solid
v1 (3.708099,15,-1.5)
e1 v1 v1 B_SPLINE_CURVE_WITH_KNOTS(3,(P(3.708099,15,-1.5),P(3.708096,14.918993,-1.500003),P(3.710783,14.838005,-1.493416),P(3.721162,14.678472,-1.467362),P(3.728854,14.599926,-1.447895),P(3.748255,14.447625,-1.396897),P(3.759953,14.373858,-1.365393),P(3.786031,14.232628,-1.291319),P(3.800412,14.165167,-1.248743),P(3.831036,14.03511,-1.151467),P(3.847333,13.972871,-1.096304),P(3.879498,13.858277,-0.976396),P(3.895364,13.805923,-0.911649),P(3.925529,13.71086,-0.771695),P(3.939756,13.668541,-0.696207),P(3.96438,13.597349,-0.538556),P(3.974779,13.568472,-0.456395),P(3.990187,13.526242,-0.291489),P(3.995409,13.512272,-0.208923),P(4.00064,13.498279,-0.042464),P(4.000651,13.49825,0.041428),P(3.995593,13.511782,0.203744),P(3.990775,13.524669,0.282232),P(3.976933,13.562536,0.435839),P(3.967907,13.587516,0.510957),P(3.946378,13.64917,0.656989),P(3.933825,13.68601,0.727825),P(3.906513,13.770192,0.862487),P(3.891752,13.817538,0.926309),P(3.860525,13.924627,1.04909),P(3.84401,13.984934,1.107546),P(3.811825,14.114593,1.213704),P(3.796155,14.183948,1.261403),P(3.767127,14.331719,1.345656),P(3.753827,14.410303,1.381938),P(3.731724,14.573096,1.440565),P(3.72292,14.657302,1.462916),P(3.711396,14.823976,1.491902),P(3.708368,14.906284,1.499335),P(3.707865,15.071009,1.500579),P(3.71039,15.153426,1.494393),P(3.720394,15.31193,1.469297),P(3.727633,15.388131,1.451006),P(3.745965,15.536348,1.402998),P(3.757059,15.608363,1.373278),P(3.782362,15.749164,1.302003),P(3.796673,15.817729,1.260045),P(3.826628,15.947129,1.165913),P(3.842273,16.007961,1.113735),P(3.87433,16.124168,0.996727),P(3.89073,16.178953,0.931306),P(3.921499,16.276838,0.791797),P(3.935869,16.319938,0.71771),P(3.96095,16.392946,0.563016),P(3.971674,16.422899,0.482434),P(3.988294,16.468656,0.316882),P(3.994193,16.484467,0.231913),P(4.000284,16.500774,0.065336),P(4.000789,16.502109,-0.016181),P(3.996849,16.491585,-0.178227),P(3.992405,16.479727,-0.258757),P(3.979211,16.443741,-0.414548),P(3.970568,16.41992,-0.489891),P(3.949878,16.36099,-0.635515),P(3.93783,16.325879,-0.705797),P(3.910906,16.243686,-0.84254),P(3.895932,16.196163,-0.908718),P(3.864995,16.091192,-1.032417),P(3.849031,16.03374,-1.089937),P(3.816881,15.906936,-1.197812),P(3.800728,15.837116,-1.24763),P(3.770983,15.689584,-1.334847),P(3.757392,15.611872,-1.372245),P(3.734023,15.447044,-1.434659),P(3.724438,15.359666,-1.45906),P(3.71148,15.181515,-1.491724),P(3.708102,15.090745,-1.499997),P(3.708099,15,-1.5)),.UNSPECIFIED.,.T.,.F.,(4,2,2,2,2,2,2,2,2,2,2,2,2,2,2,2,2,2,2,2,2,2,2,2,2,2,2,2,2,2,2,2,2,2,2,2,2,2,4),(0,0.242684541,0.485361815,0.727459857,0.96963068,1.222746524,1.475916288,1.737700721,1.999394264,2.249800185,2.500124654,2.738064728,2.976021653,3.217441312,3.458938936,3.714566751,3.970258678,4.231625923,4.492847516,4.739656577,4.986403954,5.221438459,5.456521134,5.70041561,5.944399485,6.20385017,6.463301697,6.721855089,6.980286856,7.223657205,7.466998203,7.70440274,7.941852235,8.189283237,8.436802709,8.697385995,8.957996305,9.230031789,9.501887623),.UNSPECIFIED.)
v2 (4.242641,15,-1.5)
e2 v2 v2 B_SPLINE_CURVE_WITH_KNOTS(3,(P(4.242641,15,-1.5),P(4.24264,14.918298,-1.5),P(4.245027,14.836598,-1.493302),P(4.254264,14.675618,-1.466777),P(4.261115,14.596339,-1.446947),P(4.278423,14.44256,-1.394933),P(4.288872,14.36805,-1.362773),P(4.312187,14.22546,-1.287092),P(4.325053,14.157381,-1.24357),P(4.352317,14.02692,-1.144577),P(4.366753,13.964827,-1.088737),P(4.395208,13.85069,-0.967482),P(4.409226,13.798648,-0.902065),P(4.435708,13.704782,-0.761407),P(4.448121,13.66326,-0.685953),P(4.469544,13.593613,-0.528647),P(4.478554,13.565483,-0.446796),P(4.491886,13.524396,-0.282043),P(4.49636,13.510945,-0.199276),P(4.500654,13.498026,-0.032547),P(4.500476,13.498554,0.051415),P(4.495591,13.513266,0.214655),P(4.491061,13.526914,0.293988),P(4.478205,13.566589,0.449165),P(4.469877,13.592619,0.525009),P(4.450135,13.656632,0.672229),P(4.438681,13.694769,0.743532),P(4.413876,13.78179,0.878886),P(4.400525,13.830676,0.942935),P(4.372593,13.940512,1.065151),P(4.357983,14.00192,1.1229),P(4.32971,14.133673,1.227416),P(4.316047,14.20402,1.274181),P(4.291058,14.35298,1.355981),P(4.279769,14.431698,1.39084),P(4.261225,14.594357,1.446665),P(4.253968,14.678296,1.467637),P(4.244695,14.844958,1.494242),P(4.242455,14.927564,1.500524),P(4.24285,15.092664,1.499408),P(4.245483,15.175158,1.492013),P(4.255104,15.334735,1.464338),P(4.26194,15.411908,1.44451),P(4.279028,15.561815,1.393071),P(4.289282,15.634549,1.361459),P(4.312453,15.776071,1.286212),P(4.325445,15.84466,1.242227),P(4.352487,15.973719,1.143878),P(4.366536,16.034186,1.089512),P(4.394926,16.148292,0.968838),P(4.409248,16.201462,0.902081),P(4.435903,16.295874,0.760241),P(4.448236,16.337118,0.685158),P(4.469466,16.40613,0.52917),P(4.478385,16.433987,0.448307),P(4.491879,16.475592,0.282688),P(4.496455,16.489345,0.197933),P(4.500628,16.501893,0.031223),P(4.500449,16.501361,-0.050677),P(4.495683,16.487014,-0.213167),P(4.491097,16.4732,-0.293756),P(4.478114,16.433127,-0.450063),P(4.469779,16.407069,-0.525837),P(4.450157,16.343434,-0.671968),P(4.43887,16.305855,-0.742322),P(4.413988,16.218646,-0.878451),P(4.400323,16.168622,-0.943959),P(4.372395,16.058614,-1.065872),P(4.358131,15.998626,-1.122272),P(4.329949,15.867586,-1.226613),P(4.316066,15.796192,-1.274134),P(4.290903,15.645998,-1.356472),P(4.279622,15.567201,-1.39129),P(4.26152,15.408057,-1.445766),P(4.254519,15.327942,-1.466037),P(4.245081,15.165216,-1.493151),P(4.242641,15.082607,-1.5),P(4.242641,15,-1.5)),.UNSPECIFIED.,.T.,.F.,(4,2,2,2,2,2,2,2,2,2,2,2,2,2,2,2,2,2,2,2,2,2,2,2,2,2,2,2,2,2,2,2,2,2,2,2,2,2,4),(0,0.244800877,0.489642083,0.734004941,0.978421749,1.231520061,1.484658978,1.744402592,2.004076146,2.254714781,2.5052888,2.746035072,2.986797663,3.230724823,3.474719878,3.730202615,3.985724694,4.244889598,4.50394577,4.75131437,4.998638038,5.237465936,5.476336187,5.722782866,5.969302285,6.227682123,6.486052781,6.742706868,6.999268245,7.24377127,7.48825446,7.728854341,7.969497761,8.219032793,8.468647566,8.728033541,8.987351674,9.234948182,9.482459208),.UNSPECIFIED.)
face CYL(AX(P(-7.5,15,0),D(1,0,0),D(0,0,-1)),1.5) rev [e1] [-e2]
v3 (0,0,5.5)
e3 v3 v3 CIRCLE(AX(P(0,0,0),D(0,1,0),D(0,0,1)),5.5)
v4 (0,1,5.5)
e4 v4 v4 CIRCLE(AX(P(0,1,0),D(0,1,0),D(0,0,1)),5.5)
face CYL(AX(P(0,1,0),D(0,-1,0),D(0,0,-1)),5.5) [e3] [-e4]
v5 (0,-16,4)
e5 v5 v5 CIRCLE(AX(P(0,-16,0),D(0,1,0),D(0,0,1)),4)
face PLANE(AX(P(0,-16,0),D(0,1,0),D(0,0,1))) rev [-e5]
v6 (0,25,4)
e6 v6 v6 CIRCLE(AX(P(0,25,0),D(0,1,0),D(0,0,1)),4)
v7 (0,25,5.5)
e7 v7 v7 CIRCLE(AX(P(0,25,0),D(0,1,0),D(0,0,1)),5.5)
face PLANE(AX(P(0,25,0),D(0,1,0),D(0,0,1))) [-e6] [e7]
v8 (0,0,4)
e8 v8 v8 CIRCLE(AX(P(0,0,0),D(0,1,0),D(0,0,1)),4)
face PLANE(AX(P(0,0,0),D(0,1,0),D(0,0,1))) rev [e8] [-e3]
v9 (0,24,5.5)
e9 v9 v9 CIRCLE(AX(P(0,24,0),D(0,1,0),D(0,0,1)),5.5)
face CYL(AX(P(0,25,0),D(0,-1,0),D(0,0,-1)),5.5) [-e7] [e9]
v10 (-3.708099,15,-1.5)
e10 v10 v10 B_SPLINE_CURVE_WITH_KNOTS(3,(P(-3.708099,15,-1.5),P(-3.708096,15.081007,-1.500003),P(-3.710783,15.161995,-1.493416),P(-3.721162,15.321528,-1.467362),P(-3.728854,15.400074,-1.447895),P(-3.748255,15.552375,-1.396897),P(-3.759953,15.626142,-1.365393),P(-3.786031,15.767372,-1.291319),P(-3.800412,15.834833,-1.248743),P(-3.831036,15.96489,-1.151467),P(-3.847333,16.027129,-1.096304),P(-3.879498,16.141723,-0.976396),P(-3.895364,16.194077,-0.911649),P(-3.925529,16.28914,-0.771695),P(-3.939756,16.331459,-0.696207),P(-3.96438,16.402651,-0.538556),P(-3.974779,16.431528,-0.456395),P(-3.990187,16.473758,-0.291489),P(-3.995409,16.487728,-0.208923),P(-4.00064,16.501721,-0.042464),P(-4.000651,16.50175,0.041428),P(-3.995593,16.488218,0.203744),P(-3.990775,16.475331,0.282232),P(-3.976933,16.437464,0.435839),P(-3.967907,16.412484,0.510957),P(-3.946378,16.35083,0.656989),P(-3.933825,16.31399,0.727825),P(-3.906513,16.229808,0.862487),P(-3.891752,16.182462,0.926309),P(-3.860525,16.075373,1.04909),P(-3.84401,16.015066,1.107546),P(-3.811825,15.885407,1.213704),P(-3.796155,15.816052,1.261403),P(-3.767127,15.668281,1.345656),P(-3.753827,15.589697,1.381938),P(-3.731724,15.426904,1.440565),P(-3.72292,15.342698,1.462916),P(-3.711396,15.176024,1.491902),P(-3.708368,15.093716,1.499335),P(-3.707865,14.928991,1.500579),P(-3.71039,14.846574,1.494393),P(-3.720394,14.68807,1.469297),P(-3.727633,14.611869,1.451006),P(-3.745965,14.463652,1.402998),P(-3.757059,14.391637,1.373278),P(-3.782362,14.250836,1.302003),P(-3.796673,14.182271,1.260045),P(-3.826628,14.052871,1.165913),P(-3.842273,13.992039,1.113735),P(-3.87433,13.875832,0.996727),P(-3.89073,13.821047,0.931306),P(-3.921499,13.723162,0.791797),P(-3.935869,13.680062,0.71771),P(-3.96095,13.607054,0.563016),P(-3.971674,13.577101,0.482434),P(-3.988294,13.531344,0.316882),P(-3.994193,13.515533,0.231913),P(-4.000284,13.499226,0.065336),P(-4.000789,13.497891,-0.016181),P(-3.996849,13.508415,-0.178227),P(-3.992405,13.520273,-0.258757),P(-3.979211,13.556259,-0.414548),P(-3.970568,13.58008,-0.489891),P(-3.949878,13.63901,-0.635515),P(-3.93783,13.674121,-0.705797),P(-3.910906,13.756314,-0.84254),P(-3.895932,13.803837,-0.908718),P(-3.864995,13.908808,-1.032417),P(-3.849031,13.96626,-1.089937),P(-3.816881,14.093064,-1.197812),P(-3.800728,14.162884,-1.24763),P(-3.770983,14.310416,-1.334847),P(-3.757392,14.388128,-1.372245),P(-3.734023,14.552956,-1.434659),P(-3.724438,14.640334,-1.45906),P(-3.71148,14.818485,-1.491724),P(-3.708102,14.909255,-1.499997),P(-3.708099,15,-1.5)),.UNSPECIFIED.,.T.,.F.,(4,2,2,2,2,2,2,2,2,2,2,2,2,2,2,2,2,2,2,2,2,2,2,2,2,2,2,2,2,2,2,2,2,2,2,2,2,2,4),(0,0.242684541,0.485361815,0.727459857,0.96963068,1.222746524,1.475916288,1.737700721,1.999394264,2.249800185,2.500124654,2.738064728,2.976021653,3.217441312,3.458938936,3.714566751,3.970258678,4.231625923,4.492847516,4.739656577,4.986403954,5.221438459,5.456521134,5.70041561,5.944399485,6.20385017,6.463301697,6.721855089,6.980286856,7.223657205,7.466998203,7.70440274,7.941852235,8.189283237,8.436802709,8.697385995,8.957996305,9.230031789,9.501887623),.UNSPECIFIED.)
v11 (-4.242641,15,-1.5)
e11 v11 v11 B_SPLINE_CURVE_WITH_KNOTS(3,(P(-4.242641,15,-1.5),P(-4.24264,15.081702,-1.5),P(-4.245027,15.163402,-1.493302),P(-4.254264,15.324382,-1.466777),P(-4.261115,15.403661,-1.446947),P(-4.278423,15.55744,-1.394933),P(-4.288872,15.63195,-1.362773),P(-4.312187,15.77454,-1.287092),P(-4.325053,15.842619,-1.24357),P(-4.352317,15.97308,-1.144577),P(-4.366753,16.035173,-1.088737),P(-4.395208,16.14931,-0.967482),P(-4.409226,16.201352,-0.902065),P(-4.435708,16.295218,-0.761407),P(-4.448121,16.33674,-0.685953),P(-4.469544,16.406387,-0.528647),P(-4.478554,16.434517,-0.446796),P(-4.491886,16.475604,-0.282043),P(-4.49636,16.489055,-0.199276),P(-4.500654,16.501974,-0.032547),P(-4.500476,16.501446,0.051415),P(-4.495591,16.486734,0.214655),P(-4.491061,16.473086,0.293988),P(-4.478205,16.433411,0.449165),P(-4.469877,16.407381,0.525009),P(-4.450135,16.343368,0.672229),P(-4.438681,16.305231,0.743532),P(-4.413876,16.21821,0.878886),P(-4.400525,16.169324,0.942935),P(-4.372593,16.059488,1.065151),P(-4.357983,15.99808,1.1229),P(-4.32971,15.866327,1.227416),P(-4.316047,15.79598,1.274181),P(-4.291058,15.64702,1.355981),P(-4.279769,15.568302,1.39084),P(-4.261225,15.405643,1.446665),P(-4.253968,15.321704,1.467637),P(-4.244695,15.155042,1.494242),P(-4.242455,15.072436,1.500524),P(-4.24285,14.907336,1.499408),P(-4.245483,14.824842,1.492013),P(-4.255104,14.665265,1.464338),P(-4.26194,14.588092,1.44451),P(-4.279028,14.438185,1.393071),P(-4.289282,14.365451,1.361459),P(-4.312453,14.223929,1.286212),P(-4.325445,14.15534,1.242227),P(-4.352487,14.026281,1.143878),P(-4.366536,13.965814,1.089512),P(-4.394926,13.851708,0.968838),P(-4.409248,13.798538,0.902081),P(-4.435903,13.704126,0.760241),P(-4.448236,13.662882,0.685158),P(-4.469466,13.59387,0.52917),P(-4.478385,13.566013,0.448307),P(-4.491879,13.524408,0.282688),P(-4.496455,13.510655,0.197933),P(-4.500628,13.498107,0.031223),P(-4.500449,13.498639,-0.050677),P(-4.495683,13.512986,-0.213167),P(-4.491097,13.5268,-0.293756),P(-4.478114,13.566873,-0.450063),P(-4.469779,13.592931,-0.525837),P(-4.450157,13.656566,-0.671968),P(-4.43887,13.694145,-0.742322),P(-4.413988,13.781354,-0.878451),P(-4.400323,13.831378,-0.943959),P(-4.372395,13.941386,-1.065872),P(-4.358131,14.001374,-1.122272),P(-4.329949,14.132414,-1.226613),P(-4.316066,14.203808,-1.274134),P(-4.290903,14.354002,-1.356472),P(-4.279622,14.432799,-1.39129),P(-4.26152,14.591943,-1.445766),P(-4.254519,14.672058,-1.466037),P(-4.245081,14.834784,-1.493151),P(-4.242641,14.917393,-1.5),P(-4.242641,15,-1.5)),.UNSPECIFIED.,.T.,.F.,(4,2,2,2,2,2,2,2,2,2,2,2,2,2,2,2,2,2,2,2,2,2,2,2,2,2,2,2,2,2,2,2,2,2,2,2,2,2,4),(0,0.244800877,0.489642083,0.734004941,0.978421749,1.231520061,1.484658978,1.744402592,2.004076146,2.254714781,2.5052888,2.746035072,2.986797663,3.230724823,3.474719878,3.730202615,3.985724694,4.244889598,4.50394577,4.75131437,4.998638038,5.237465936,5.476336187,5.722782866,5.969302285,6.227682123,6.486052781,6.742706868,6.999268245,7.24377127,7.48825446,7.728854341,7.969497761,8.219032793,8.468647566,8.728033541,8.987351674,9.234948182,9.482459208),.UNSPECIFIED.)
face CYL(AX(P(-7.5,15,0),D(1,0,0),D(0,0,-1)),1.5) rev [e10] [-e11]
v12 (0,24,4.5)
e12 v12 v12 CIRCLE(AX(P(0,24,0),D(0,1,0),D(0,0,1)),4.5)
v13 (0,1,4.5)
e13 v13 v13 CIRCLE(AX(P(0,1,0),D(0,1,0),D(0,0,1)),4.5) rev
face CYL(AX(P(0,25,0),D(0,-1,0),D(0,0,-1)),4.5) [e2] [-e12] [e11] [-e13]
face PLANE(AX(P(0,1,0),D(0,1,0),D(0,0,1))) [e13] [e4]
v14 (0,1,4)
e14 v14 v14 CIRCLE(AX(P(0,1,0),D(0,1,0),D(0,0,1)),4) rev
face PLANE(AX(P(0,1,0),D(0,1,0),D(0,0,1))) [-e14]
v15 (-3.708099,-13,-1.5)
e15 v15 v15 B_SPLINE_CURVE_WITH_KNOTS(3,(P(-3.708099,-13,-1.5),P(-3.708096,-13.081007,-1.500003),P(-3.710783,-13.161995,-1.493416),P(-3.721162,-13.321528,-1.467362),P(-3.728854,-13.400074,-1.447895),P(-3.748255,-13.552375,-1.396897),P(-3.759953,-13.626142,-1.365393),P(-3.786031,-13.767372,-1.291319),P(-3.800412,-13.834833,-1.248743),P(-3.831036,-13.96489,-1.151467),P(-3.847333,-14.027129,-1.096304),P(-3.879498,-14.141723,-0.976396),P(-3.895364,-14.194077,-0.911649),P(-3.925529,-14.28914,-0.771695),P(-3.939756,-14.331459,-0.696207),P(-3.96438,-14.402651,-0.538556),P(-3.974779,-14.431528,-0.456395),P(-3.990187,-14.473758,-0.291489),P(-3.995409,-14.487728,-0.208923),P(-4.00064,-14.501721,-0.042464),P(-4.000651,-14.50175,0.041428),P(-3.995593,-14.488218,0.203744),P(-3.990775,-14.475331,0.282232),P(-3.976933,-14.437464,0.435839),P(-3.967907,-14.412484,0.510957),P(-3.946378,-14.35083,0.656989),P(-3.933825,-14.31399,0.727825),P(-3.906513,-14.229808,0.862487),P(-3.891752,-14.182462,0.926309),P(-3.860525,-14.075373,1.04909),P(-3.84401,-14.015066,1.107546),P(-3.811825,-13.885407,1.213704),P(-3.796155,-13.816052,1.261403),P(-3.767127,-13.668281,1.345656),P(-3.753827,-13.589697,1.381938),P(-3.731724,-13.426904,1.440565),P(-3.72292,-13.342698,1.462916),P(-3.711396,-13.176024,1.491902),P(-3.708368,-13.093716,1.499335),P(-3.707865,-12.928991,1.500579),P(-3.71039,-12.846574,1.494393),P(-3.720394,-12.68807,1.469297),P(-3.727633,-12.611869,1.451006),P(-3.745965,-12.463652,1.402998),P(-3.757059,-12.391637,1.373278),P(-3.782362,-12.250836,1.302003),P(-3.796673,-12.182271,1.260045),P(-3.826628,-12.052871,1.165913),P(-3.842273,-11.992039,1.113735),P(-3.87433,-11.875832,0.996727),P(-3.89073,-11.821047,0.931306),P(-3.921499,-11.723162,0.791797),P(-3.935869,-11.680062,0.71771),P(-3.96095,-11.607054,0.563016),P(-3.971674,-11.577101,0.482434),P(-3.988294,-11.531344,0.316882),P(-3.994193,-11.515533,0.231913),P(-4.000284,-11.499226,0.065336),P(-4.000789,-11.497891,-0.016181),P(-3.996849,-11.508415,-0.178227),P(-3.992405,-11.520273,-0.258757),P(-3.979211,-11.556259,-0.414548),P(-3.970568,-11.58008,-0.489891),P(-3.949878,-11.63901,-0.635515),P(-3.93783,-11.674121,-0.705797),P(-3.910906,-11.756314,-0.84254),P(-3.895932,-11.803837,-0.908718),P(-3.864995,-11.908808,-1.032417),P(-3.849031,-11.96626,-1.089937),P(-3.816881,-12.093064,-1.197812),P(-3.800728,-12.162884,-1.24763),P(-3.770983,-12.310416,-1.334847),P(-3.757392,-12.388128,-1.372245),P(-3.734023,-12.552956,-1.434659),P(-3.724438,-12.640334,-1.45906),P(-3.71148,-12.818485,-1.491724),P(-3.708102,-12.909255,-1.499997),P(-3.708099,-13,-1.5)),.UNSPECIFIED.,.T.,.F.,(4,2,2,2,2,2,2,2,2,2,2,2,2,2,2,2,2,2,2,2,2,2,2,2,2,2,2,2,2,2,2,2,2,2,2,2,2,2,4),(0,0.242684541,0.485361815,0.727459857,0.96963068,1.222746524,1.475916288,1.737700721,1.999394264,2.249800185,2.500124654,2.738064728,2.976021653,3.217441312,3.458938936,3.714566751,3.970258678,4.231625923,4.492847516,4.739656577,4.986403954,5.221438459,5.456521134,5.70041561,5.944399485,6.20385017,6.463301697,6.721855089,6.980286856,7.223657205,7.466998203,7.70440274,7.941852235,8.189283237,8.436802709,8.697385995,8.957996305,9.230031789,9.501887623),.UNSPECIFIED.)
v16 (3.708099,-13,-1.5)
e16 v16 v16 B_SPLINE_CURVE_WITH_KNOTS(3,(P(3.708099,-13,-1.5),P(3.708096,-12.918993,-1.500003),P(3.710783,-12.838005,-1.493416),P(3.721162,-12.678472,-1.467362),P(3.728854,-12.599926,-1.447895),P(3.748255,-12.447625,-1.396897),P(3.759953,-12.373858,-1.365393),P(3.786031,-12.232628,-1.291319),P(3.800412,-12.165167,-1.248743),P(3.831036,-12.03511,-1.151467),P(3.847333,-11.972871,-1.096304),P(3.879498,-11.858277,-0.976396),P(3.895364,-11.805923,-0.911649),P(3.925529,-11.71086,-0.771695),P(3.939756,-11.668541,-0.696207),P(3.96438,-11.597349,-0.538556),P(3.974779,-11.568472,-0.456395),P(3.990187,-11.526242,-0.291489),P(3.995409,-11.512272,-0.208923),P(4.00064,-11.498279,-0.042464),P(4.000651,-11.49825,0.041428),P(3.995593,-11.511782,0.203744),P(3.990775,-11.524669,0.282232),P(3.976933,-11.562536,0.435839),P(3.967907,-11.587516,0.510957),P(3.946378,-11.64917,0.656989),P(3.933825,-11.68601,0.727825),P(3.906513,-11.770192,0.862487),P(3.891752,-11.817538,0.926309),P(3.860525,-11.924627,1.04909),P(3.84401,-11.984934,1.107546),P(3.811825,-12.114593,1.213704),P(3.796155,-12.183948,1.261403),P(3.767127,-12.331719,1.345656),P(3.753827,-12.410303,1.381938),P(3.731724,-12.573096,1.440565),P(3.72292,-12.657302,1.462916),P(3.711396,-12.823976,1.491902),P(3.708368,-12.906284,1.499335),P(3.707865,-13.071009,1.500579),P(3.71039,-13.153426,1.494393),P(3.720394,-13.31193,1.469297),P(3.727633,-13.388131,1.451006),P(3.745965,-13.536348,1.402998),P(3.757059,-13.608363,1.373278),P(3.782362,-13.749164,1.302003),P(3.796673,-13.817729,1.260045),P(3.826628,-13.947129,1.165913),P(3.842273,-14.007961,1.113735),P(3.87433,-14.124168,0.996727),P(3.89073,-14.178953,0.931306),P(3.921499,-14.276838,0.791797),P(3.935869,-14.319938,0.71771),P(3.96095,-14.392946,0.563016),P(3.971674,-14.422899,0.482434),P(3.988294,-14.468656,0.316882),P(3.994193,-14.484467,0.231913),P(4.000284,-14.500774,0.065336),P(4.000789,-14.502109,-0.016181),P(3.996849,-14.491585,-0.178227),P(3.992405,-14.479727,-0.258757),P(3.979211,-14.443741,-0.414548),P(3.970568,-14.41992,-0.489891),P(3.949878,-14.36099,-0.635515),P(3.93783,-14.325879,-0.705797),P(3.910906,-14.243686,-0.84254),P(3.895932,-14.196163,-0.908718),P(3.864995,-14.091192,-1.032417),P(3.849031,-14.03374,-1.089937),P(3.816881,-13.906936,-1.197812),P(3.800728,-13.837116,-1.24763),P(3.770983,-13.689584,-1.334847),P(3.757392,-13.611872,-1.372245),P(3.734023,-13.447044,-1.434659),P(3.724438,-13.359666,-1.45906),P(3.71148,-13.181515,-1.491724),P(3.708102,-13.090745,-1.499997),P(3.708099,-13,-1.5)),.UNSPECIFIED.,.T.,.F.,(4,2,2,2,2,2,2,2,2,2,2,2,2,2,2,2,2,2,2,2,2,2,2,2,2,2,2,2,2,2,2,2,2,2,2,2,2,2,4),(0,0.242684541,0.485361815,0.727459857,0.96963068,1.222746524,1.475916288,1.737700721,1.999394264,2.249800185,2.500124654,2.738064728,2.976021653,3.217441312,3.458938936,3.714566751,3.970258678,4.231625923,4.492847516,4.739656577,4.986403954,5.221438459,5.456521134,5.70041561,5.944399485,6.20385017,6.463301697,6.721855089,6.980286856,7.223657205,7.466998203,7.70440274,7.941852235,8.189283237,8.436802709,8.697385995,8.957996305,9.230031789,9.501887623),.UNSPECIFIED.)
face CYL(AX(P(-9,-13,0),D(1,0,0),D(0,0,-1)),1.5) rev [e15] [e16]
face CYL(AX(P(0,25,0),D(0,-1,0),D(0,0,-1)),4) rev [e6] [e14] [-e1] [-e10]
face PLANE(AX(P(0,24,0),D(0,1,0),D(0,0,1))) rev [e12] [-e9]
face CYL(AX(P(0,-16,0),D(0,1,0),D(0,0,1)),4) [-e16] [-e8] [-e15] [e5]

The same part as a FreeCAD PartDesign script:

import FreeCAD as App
import Part
import Sketcher
from FreeCAD import Vector
Q = App.Units.Quantity

doc = App.newDocument("Part")
body = doc.addObject("PartDesign::Body", "Body")

sketch1 = body.newObject("Sketcher::SketchObject", "Sketch")
sketch1.AttachmentSupport = (doc.getObject("XZ_Plane"), [""])
sketch1.MapMode = "FlatFace"
sketch1.addGeometry(Part.Circle(Vector(0, 0, 0), Vector(0, 0, 1), 5.5), False)
sketch1.addConstraint([
    Sketcher.Constraint("Coincident", 0, 3, -1, 1),
    Sketcher.Constraint("Diameter", 0, Q("11 mm")),
])
pad1 = body.newObject("PartDesign::Pad", "Pad")
pad1.Profile = sketch1
pad1.Length = 1
pad1.Reversed = True

sketch2 = body.newObject("Sketcher::SketchObject", "Sketch001")
sketch2.AttachmentSupport = (doc.getObject("XZ_Plane"), [""])
sketch2.MapMode = "FlatFace"
sketch2.addGeometry(Part.Circle(Vector(0, 0, 0), Vector(0, 0, 1), 4), False)
sketch2.addConstraint([
    Sketcher.Constraint("Coincident", 0, 3, -1, 1),
    Sketcher.Constraint("Diameter", 0, Q("8 mm")),
])
pad2 = body.newObject("PartDesign::Pad", "Pad001")
pad2.Profile = sketch2
pad2.Length = 16

sketch3 = body.newObject("Sketcher::SketchObject", "Sketch002")
sketch3.AttachmentSupport = (doc.getObject("YZ_Plane"), [""])
sketch3.MapMode = "FlatFace"
sketch3.AttachmentOffset = App.Placement(Vector(0, 0, 4), App.Rotation())
sketch3.addGeometry(Part.Circle(Vector(-13, 0, 0), Vector(0, 0, 1), 1.5), False)
sketch3.addConstraint([
    Sketcher.Constraint("PointOnObject", 0, 3, -1),
    Sketcher.Constraint("Diameter", 0, Q("3 mm")),
    Sketcher.Constraint("DistanceX", 0, 3, -1, 1, Q("13 mm")),
])
pocket1 = body.newObject("PartDesign::Pocket", "Pocket")
pocket1.Profile = sketch3
pocket1.Length = 13

sketch4 = body.newObject("Sketcher::SketchObject", "Sketch003")
sketch4.AttachmentSupport = (doc.getObject("XZ_Plane"), [""])
sketch4.MapMode = "FlatFace"
sketch4.addGeometry([
    Part.Circle(Vector(0, 0, 0), Vector(0, 0, 1), 4.5),
    Part.Circle(Vector(0, 0, 0), Vector(0, 0, 1), 4),
], False)
sketch4.addConstraint([
    Sketcher.Constraint("Coincident", 0, 3, -1, 1),
    Sketcher.Constraint("Coincident", 1, 3, -1, 1),
    Sketcher.Constraint("Diameter", 0, Q("9 mm")),
    Sketcher.Constraint("Diameter", 1, Q("8 mm")),
])
pad3 = body.newObject("PartDesign::Pad", "Pad002")
pad3.Profile = sketch4
pad3.Length = 25
pad3.Reversed = True

sketch5 = body.newObject("Sketcher::SketchObject", "Sketch004")
sketch5.AttachmentSupport = (doc.getObject("XZ_Plane"), [""])
sketch5.MapMode = "FlatFace"
sketch5.AttachmentOffset = App.Placement(Vector(0, 0, -24), App.Rotation())
sketch5.addGeometry([
    Part.Circle(Vector(0, 0, 0), Vector(0, 0, 1), 5.5),
    Part.Circle(Vector(0, 0, 0), Vector(0, 0, 1), 4.5),
], False)
sketch5.addConstraint([
    Sketcher.Constraint("Coincident", 0, 3, -1, 1),
    Sketcher.Constraint("Coincident", 1, 3, -1, 1),
    Sketcher.Constraint("Diameter", 0, Q("11 mm")),
    Sketcher.Constraint("Diameter", 1, Q("9 mm")),
])
pad4 = body.newObject("PartDesign::Pad", "Pad003")
pad4.Profile = sketch5
pad4.Length = 1
pad4.Reversed = True

sketch6 = body.newObject("Sketcher::SketchObject", "Sketch005")
sketch6.AttachmentSupport = (doc.getObject("YZ_Plane"), [""])
sketch6.MapMode = "FlatFace"
sketch6.AttachmentOffset = App.Placement(Vector(0, 0, 4), App.Rotation())
sketch6.addGeometry(Part.Circle(Vector(15, 0, 0), Vector(0, 0, 1), 1.5), False)
sketch6.addConstraint([
    Sketcher.Constraint("PointOnObject", 0, 3, -1),
    Sketcher.Constraint("Diameter", 0, Q("3 mm")),
    Sketcher.Constraint("DistanceX", -1, 1, 0, 3, Q("15 mm")),
])
pocket2 = body.newObject("PartDesign::Pocket", "Pocket001")
pocket2.Profile = sketch6
pocket2.Length = 23
pocket2.Midplane = True

doc.recompute()
